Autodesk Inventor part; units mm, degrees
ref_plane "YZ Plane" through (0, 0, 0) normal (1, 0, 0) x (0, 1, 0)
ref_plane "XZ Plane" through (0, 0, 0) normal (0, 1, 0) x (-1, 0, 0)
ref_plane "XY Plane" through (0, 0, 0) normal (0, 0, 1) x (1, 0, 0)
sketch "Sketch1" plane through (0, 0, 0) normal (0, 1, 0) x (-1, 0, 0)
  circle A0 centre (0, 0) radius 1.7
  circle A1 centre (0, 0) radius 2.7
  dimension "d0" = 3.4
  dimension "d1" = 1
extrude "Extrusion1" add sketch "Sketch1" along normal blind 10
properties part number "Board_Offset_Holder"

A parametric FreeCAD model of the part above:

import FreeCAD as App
import Part
import Sketcher

V = App.Vector

doc = App.newDocument("Part")
body = doc.addObject("PartDesign::Body", "Body")

sketch1 = doc.addObject("Sketcher::SketchObject", "Sketch")
body.addObject(sketch1)
sketch1.AttachmentSupport = (doc.XZ_Plane, [""])
sketch1.MapMode = "FlatFace"
sketch1.addGeometry(Part.Circle(V(0, 0, 0), V(0, 0, 1), 2.7), False)
sketch1.addGeometry(Part.Circle(V(0, 0, 0), V(0, 0, 1), 1.7), False)
sketch1.addConstraint(Sketcher.Constraint("Coincident", 0, 3, -1, 1))
sketch1.addConstraint(Sketcher.Constraint("Coincident", 1, 3, -1, 1))
sketch1.addConstraint(Sketcher.Constraint("Diameter", 1, 3.4))
sketch1.addConstraint(Sketcher.Constraint("Diameter", 0, 5.4))
pad1 = doc.addObject("PartDesign::Pad", "Pad")
body.addObject(pad1)
pad1.Profile = sketch1
pad1.Length = 10
pad1.Reversed = True

doc.recompute()
